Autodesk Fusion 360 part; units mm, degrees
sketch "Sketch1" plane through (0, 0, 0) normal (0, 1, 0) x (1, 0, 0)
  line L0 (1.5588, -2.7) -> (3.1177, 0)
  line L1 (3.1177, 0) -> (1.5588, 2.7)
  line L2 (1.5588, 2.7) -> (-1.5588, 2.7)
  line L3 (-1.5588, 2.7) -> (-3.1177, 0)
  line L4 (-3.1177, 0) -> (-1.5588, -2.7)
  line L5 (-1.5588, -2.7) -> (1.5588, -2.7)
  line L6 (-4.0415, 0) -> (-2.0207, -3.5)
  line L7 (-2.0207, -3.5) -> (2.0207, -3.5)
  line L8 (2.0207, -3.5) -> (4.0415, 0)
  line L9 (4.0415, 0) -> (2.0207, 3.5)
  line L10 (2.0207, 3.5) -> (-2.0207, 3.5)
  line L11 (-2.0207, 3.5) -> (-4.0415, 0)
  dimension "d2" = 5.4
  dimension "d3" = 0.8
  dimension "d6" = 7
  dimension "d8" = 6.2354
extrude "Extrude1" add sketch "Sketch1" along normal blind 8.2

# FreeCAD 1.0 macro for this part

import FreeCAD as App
import Part
import Sketcher

V = App.Vector
Q = App.Units.Quantity

doc = App.newDocument("Part")
body = doc.addObject("PartDesign::Body", "Body")

# Sketch on XZ plane
sketch1 = doc.addObject("Sketcher::SketchObject", "Sketch")
body.addObject(sketch1)
sketch1.AttachmentSupport = (doc.XZ_Plane, [""])
sketch1.MapMode = "FlatFace"
sketch1.addGeometry([
    Part.LineSegment(V(-2, -3.5, 0), V(-4, 0, 0)),  # 0
    Part.LineSegment(V(-4, 0, 0), V(-2, 3.5, 0)),  # 1
    Part.LineSegment(V(-2, 3.5, 0), V(2, 3.5, 0)),  # 2
    Part.LineSegment(V(2, 3.5, 0), V(4, 0, 0)),  # 3
    Part.LineSegment(V(4, 0, 0), V(2, -3.5, 0)),  # 4
    Part.LineSegment(V(2, -3.5, 0), V(-2, -3.5, 0)),  # 5
    Part.LineSegment(V(3.1, 0, 0), V(1.6, 2.7, 0)),  # 6
    Part.LineSegment(V(1.6, 2.7, 0), V(-1.6, 2.7, 0)),  # 7
    Part.LineSegment(V(-1.6, 2.7, 0), V(-3.1, 0, 0)),  # 8
    Part.LineSegment(V(-3.1, 0, 0), V(-1.6, -2.7, 0)),  # 9
    Part.LineSegment(V(-1.6, -2.7, 0), V(1.6, -2.7, 0)),  # 10
    Part.LineSegment(V(1.6, -2.7, 0), V(3.1, 0, 0)),  # 11
], False)
sketch1.addConstraint([
    Sketcher.Constraint("Coincident", 0, 2, 1, 1),
    Sketcher.Constraint("Coincident", 1, 2, 2, 1),
    Sketcher.Constraint("Coincident", 2, 2, 3, 1),
    Sketcher.Constraint("Coincident", 3, 2, 4, 1),
    Sketcher.Constraint("Coincident", 4, 2, 5, 1),
    Sketcher.Constraint("Coincident", 5, 2, 0, 1),
    Sketcher.Constraint("Coincident", 6, 2, 7, 1),
    Sketcher.Constraint("Coincident", 7, 2, 8, 1),
    Sketcher.Constraint("Coincident", 8, 2, 9, 1),
    Sketcher.Constraint("Coincident", 9, 2, 10, 1),
    Sketcher.Constraint("Coincident", 10, 2, 11, 1),
    Sketcher.Constraint("Coincident", 11, 2, 6, 1),
    Sketcher.Constraint("Horizontal", 2),
    Sketcher.Constraint("Horizontal", 5),
    Sketcher.Constraint("Horizontal", 7),
    Sketcher.Constraint("Horizontal", 10),
    Sketcher.Constraint("Symmetric", 0, 2, 3, 2, -1, 1),
    Sketcher.Constraint("Symmetric", 1, 2, 4, 2, -1, 1),
    Sketcher.Constraint("Symmetric", 6, 2, 9, 2, -1, 1),
    Sketcher.Constraint("Symmetric", 8, 2, 11, 2, -1, 1),
    Sketcher.Constraint("PointOnObject", 0, 2, -1),
    Sketcher.Constraint("PointOnObject", 8, 2, -1),
    Sketcher.Constraint("Parallel", 0, 3),
    Sketcher.Constraint("Parallel", 3, 6),
    Sketcher.Constraint("Parallel", 4, 8),
    Sketcher.Constraint("Parallel", 8, 11),
    Sketcher.Constraint("Vertical", 2, 2, 4, 2),
    Sketcher.Constraint("DistanceY", 4, 2, 2, 2, 7.0),
    Sketcher.Constraint("DistanceY", 6, 2, 2, 2, 0.8),
    Sketcher.Constraint("Angle", 0, Q("120.001 deg")),
    Sketcher.Constraint("DistanceX", 2, 1, 2, 2, 4.0414),
    Sketcher.Constraint("DistanceX", 7, 2, 7, 1, 3.1176),
])
pad1 = doc.addObject("PartDesign::Pad", "Pad")
body.addObject(pad1)
pad1.Profile = sketch1
pad1.Length = 8.2
pad1.Reversed = True

doc.recompute()
